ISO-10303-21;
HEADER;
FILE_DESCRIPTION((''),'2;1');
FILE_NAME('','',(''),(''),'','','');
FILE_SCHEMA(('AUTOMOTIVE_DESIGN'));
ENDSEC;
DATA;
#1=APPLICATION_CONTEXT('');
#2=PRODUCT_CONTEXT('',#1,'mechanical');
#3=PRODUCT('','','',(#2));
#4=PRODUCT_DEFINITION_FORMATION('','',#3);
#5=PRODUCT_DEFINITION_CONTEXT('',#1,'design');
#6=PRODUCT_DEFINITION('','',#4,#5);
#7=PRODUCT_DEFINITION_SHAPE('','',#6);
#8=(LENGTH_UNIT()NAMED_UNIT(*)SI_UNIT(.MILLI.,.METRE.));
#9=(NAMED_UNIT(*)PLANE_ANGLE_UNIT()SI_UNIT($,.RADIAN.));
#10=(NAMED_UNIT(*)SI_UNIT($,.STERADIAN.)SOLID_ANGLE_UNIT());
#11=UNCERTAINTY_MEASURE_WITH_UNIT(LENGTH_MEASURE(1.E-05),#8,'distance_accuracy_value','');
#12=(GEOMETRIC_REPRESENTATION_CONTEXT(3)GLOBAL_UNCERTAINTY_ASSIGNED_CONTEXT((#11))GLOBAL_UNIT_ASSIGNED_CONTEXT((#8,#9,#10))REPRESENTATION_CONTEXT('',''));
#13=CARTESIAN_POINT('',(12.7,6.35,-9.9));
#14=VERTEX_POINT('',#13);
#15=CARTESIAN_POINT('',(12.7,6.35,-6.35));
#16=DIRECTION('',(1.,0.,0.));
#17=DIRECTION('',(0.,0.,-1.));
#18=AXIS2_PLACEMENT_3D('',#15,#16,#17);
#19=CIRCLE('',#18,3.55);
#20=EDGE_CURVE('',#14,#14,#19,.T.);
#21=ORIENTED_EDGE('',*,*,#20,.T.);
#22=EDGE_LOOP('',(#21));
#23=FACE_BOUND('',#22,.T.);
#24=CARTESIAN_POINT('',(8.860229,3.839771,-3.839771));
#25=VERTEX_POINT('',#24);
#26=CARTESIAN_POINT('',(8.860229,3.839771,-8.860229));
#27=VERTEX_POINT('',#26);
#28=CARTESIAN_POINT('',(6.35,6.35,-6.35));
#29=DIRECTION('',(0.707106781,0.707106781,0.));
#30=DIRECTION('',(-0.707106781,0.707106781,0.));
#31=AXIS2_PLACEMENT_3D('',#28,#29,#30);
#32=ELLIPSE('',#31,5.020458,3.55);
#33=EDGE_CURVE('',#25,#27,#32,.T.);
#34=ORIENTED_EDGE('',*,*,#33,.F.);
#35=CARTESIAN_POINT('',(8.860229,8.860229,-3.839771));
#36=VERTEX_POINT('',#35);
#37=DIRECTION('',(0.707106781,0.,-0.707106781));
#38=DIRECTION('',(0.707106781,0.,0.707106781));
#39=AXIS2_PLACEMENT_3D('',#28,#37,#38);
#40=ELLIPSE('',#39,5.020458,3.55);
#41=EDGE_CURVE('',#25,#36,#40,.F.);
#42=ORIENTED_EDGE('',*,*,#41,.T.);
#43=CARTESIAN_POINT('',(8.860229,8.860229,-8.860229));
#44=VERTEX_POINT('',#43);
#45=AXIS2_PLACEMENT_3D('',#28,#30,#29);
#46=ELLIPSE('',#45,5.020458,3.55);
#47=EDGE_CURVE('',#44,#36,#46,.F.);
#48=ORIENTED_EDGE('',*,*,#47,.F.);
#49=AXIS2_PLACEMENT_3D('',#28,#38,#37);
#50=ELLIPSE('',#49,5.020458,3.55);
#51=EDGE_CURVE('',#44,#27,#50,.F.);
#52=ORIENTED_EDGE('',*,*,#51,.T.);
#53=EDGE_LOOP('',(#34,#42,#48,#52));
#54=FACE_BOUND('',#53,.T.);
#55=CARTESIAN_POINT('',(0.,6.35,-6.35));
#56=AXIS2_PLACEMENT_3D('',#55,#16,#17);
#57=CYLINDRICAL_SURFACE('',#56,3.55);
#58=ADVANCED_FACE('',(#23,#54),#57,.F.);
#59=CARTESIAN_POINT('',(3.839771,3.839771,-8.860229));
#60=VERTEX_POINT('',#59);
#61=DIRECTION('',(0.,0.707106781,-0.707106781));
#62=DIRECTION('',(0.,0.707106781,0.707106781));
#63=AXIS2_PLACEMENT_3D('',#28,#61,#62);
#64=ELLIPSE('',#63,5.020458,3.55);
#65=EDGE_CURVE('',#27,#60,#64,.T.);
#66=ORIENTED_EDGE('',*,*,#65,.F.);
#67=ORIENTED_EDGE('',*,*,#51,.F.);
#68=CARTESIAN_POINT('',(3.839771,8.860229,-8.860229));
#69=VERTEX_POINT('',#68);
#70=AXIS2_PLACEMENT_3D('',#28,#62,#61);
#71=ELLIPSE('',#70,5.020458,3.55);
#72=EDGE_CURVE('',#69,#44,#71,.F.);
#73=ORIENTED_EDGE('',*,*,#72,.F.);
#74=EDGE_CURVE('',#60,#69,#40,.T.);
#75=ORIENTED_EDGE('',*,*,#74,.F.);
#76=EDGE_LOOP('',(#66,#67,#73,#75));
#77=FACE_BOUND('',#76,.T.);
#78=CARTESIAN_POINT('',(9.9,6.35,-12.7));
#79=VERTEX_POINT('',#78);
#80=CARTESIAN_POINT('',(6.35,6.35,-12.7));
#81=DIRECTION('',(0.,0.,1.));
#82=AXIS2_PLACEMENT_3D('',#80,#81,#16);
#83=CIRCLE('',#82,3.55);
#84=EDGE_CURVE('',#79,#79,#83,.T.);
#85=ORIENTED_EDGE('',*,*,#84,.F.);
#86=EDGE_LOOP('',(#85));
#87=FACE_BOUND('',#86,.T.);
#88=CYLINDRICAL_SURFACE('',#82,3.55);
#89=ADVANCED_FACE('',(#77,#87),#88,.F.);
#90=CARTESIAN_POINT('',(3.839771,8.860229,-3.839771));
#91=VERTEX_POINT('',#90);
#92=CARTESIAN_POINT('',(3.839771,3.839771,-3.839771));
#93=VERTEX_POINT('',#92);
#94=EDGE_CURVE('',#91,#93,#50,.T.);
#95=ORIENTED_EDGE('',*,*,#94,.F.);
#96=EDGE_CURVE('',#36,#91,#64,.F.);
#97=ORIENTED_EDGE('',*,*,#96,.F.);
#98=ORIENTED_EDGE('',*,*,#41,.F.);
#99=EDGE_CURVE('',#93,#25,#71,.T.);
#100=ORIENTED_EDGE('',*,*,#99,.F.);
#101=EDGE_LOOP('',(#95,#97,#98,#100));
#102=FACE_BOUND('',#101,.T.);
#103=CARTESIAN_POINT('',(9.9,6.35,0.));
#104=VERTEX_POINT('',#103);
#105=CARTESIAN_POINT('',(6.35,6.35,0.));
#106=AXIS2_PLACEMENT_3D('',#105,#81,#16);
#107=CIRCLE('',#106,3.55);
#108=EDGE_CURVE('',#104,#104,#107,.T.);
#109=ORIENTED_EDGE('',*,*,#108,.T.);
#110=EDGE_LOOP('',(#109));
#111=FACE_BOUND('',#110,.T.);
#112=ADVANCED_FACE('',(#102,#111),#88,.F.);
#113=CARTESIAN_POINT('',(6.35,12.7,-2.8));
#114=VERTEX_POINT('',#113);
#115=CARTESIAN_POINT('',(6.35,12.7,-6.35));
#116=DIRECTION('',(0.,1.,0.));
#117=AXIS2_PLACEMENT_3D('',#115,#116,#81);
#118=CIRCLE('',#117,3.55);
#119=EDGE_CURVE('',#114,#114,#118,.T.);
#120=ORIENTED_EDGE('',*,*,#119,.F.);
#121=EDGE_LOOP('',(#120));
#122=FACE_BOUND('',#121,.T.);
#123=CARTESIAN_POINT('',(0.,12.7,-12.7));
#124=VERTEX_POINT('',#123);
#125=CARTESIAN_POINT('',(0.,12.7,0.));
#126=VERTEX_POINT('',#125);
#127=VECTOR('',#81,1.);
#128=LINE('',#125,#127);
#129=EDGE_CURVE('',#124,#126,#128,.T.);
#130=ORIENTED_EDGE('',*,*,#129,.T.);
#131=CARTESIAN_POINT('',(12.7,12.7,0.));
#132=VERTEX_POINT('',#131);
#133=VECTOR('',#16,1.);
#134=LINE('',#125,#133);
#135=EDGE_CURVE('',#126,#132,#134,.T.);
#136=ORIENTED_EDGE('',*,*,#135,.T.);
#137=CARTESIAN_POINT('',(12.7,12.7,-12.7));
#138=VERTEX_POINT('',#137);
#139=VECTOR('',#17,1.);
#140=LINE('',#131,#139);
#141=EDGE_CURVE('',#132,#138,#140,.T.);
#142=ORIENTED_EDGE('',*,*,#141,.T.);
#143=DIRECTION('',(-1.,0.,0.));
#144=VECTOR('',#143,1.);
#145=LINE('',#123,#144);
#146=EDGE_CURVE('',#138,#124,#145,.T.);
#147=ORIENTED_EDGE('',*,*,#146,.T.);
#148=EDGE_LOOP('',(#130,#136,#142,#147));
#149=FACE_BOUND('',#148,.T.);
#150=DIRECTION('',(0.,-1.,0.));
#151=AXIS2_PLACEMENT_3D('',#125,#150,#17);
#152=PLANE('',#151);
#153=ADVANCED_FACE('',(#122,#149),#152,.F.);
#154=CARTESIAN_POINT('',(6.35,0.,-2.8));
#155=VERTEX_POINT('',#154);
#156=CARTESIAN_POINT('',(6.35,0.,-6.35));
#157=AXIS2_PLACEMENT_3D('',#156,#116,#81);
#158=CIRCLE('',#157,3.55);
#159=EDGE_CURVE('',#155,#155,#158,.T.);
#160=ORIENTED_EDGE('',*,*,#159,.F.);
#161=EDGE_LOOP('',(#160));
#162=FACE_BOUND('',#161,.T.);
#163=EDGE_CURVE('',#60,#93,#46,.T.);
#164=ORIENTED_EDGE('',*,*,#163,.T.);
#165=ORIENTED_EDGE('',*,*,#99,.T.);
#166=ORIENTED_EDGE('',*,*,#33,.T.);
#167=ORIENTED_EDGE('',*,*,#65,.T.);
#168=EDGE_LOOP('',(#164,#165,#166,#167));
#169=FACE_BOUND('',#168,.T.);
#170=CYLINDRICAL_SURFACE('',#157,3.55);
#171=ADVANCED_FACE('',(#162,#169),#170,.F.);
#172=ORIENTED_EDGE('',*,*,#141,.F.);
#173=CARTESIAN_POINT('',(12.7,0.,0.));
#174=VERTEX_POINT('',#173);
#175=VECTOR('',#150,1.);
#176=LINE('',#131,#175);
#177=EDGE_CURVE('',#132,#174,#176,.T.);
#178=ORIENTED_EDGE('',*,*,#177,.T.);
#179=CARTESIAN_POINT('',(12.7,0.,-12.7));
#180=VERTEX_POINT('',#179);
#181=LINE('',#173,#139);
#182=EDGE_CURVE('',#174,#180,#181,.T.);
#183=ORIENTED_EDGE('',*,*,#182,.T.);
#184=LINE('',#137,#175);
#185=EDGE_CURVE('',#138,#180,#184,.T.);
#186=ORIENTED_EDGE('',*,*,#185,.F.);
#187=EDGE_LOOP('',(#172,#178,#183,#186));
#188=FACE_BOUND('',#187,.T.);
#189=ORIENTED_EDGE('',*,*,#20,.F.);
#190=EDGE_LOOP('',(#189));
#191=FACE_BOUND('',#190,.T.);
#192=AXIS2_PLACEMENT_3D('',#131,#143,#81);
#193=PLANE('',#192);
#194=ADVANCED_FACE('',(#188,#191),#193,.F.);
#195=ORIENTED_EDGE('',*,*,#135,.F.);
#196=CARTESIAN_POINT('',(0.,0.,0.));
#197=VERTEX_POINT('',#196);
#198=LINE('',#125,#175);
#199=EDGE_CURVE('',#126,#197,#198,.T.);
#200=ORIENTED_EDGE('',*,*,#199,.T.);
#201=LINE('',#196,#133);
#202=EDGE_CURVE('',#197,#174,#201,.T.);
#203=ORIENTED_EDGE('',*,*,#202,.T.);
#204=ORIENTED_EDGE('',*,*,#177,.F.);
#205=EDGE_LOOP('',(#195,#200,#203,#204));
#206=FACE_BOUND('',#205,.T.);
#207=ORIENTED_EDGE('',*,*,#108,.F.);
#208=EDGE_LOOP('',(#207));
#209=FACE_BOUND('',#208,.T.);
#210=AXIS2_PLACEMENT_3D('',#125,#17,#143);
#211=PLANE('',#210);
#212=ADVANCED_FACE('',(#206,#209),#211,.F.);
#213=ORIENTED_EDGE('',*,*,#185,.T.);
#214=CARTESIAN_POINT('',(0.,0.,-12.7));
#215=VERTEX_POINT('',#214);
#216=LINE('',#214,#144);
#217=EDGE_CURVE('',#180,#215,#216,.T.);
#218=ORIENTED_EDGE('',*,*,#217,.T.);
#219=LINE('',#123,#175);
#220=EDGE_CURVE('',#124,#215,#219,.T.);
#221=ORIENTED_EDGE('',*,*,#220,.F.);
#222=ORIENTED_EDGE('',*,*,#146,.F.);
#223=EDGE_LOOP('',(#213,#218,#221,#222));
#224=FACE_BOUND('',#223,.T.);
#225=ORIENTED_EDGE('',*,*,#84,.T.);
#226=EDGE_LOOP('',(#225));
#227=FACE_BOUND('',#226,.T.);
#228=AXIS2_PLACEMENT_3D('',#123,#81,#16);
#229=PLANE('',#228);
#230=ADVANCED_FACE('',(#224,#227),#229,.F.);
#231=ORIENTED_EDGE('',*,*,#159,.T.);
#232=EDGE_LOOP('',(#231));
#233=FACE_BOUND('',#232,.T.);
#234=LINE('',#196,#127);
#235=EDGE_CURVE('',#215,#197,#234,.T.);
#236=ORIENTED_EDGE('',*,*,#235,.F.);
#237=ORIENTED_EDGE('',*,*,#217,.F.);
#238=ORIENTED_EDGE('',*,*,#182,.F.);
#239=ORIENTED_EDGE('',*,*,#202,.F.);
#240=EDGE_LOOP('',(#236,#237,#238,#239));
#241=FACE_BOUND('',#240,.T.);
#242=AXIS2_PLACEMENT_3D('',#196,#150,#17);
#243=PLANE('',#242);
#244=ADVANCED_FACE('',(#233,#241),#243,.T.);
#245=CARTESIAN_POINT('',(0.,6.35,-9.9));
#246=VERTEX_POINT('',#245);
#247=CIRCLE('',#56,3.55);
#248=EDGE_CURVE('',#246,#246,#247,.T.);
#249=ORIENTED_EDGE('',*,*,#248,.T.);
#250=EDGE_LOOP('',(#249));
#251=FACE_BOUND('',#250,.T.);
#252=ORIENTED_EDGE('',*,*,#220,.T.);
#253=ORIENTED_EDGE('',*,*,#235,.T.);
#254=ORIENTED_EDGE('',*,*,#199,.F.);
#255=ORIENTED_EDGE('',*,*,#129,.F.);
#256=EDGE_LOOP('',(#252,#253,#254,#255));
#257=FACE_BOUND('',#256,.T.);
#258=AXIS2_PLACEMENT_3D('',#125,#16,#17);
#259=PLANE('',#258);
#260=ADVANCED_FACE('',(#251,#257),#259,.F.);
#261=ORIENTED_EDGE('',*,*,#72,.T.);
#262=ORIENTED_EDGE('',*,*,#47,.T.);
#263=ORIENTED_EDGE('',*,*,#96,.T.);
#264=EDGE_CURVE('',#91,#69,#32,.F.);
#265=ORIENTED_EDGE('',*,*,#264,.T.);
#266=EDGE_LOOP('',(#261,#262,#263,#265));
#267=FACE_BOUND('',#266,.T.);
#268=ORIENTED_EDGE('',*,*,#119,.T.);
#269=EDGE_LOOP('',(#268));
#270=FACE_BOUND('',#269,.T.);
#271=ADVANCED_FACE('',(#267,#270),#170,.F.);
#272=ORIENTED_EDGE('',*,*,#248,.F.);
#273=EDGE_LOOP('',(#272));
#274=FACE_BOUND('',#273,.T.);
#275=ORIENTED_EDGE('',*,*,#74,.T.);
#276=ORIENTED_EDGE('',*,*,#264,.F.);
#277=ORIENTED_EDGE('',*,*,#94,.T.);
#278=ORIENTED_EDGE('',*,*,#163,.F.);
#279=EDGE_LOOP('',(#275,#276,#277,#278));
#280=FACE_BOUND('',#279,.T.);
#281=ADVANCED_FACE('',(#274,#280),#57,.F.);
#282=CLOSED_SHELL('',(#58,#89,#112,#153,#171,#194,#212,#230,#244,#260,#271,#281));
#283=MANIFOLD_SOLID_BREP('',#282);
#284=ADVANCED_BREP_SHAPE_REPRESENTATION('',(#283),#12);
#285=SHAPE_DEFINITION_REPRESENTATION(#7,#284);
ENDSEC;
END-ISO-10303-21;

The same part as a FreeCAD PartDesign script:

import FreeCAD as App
import Part
import Sketcher
from FreeCAD import Vector


def add_polygon(sketch, points):
    """Adds a closed chain of lines whose ends are joined by coincident constraints."""
    first, n = sketch.GeometryCount, len(points)
    for a, b in zip(points, points[1:] + points[:1]):
        sketch.addGeometry(Part.LineSegment(App.Vector(*a, 0), App.Vector(*b, 0)), False)
    for i in range(n):
        sketch.addConstraint(Sketcher.Constraint("Coincident", first + i, 2, first + (i + 1) % n, 1))

doc = App.newDocument("Part")
body = doc.addObject("PartDesign::Body", "Body")

# Sketch on XZ plane
sketch1 = body.newObject("Sketcher::SketchObject", "Sketch")
sketch1.AttachmentSupport = (doc.getObject("XZ_Plane"), [""])
sketch1.MapMode = "FlatFace"
add_polygon(sketch1, [(0, -13), (0, 0), (13, 0), (13, -13)])  # lines 0-3
sketch1.addConstraint(Sketcher.Constraint("Vertical", 0))
sketch1.addConstraint(Sketcher.Constraint("Horizontal", 1))
sketch1.addConstraint(Sketcher.Constraint("Vertical", 2))
sketch1.addConstraint(Sketcher.Constraint("Horizontal", 3))
sketch1.addConstraint(Sketcher.Constraint("Coincident", 0, 2, -1, 1))
sketch1.addConstraint(Sketcher.Constraint("Equal", 3, 0))
sketch1.addConstraint(Sketcher.Constraint("DistanceX", 1, 1, 1, 2, 12.7))
pad1 = body.newObject("PartDesign::Pad", "Pad")
pad1.Profile = sketch1
pad1.Length = 12.7
pad1.Reversed = True

# Sketch on XZ plane
sketch2 = body.newObject("Sketcher::SketchObject", "Sketch001")
sketch2.AttachmentSupport = (doc.getObject("XZ_Plane"), [""])
sketch2.MapMode = "FlatFace"
sketch2.AttachmentOffset = App.Placement(Vector(0, 0, -12.7), App.Rotation())
sketch2.addGeometry(Part.Circle(Vector(6.3, -6.3, 0), Vector(0, 0, 1), 3.5), False)
sketch2.addConstraint(Sketcher.Constraint("Diameter", 0, 7.1))
sketch2.addConstraint(Sketcher.Constraint("DistanceX", -1, 1, 0, 3, 6.35))
sketch2.addConstraint(Sketcher.Constraint("DistanceY", 0, 3, -1, 1, 6.35))
pocket1 = body.newObject("PartDesign::Pocket", "Pocket")
pocket1.Profile = sketch2
pocket1.Type = "ThroughAll"
pocket1.Reversed = True

# Sketch on YZ plane
sketch3 = body.newObject("Sketcher::SketchObject", "Sketch002")
sketch3.AttachmentSupport = (doc.getObject("YZ_Plane"), [""])
sketch3.MapMode = "FlatFace"
sketch3.AttachmentOffset = App.Placement(Vector(0, 0, 12.7), App.Rotation())
sketch3.addGeometry(Part.Circle(Vector(6.3, -6.3, 0), Vector(0, 0, 1), 3.5), False)
sketch3.addConstraint(Sketcher.Constraint("Diameter", 0, 7.1))
sketch3.addConstraint(Sketcher.Constraint("DistanceX", -1, 1, 0, 3, 6.35))
sketch3.addConstraint(Sketcher.Constraint("DistanceY", 0, 3, -1, 1, 6.35))
pocket2 = body.newObject("PartDesign::Pocket", "Pocket001")
pocket2.Profile = sketch3
pocket2.Type = "ThroughAll"

# Sketch on XY plane
sketch4 = body.newObject("Sketcher::SketchObject", "Sketch003")
sketch4.AttachmentSupport = (doc.getObject("XY_Plane"), [""])
sketch4.MapMode = "FlatFace"
sketch4.addGeometry(Part.Circle(Vector(6.3, 6.3, 0), Vector(0, 0, 1), 3.5), False)
sketch4.addConstraint(Sketcher.Constraint("Diameter", 0, 7.1))
sketch4.addConstraint(Sketcher.Constraint("DistanceX", -1, 1, 0, 3, 6.35))
sketch4.addConstraint(Sketcher.Constraint("DistanceY", -1, 1, 0, 3, 6.35))
pocket3 = body.newObject("PartDesign::Pocket", "Pocket002")
pocket3.Profile = sketch4
pocket3.Type = "ThroughAll"

doc.recompute()
